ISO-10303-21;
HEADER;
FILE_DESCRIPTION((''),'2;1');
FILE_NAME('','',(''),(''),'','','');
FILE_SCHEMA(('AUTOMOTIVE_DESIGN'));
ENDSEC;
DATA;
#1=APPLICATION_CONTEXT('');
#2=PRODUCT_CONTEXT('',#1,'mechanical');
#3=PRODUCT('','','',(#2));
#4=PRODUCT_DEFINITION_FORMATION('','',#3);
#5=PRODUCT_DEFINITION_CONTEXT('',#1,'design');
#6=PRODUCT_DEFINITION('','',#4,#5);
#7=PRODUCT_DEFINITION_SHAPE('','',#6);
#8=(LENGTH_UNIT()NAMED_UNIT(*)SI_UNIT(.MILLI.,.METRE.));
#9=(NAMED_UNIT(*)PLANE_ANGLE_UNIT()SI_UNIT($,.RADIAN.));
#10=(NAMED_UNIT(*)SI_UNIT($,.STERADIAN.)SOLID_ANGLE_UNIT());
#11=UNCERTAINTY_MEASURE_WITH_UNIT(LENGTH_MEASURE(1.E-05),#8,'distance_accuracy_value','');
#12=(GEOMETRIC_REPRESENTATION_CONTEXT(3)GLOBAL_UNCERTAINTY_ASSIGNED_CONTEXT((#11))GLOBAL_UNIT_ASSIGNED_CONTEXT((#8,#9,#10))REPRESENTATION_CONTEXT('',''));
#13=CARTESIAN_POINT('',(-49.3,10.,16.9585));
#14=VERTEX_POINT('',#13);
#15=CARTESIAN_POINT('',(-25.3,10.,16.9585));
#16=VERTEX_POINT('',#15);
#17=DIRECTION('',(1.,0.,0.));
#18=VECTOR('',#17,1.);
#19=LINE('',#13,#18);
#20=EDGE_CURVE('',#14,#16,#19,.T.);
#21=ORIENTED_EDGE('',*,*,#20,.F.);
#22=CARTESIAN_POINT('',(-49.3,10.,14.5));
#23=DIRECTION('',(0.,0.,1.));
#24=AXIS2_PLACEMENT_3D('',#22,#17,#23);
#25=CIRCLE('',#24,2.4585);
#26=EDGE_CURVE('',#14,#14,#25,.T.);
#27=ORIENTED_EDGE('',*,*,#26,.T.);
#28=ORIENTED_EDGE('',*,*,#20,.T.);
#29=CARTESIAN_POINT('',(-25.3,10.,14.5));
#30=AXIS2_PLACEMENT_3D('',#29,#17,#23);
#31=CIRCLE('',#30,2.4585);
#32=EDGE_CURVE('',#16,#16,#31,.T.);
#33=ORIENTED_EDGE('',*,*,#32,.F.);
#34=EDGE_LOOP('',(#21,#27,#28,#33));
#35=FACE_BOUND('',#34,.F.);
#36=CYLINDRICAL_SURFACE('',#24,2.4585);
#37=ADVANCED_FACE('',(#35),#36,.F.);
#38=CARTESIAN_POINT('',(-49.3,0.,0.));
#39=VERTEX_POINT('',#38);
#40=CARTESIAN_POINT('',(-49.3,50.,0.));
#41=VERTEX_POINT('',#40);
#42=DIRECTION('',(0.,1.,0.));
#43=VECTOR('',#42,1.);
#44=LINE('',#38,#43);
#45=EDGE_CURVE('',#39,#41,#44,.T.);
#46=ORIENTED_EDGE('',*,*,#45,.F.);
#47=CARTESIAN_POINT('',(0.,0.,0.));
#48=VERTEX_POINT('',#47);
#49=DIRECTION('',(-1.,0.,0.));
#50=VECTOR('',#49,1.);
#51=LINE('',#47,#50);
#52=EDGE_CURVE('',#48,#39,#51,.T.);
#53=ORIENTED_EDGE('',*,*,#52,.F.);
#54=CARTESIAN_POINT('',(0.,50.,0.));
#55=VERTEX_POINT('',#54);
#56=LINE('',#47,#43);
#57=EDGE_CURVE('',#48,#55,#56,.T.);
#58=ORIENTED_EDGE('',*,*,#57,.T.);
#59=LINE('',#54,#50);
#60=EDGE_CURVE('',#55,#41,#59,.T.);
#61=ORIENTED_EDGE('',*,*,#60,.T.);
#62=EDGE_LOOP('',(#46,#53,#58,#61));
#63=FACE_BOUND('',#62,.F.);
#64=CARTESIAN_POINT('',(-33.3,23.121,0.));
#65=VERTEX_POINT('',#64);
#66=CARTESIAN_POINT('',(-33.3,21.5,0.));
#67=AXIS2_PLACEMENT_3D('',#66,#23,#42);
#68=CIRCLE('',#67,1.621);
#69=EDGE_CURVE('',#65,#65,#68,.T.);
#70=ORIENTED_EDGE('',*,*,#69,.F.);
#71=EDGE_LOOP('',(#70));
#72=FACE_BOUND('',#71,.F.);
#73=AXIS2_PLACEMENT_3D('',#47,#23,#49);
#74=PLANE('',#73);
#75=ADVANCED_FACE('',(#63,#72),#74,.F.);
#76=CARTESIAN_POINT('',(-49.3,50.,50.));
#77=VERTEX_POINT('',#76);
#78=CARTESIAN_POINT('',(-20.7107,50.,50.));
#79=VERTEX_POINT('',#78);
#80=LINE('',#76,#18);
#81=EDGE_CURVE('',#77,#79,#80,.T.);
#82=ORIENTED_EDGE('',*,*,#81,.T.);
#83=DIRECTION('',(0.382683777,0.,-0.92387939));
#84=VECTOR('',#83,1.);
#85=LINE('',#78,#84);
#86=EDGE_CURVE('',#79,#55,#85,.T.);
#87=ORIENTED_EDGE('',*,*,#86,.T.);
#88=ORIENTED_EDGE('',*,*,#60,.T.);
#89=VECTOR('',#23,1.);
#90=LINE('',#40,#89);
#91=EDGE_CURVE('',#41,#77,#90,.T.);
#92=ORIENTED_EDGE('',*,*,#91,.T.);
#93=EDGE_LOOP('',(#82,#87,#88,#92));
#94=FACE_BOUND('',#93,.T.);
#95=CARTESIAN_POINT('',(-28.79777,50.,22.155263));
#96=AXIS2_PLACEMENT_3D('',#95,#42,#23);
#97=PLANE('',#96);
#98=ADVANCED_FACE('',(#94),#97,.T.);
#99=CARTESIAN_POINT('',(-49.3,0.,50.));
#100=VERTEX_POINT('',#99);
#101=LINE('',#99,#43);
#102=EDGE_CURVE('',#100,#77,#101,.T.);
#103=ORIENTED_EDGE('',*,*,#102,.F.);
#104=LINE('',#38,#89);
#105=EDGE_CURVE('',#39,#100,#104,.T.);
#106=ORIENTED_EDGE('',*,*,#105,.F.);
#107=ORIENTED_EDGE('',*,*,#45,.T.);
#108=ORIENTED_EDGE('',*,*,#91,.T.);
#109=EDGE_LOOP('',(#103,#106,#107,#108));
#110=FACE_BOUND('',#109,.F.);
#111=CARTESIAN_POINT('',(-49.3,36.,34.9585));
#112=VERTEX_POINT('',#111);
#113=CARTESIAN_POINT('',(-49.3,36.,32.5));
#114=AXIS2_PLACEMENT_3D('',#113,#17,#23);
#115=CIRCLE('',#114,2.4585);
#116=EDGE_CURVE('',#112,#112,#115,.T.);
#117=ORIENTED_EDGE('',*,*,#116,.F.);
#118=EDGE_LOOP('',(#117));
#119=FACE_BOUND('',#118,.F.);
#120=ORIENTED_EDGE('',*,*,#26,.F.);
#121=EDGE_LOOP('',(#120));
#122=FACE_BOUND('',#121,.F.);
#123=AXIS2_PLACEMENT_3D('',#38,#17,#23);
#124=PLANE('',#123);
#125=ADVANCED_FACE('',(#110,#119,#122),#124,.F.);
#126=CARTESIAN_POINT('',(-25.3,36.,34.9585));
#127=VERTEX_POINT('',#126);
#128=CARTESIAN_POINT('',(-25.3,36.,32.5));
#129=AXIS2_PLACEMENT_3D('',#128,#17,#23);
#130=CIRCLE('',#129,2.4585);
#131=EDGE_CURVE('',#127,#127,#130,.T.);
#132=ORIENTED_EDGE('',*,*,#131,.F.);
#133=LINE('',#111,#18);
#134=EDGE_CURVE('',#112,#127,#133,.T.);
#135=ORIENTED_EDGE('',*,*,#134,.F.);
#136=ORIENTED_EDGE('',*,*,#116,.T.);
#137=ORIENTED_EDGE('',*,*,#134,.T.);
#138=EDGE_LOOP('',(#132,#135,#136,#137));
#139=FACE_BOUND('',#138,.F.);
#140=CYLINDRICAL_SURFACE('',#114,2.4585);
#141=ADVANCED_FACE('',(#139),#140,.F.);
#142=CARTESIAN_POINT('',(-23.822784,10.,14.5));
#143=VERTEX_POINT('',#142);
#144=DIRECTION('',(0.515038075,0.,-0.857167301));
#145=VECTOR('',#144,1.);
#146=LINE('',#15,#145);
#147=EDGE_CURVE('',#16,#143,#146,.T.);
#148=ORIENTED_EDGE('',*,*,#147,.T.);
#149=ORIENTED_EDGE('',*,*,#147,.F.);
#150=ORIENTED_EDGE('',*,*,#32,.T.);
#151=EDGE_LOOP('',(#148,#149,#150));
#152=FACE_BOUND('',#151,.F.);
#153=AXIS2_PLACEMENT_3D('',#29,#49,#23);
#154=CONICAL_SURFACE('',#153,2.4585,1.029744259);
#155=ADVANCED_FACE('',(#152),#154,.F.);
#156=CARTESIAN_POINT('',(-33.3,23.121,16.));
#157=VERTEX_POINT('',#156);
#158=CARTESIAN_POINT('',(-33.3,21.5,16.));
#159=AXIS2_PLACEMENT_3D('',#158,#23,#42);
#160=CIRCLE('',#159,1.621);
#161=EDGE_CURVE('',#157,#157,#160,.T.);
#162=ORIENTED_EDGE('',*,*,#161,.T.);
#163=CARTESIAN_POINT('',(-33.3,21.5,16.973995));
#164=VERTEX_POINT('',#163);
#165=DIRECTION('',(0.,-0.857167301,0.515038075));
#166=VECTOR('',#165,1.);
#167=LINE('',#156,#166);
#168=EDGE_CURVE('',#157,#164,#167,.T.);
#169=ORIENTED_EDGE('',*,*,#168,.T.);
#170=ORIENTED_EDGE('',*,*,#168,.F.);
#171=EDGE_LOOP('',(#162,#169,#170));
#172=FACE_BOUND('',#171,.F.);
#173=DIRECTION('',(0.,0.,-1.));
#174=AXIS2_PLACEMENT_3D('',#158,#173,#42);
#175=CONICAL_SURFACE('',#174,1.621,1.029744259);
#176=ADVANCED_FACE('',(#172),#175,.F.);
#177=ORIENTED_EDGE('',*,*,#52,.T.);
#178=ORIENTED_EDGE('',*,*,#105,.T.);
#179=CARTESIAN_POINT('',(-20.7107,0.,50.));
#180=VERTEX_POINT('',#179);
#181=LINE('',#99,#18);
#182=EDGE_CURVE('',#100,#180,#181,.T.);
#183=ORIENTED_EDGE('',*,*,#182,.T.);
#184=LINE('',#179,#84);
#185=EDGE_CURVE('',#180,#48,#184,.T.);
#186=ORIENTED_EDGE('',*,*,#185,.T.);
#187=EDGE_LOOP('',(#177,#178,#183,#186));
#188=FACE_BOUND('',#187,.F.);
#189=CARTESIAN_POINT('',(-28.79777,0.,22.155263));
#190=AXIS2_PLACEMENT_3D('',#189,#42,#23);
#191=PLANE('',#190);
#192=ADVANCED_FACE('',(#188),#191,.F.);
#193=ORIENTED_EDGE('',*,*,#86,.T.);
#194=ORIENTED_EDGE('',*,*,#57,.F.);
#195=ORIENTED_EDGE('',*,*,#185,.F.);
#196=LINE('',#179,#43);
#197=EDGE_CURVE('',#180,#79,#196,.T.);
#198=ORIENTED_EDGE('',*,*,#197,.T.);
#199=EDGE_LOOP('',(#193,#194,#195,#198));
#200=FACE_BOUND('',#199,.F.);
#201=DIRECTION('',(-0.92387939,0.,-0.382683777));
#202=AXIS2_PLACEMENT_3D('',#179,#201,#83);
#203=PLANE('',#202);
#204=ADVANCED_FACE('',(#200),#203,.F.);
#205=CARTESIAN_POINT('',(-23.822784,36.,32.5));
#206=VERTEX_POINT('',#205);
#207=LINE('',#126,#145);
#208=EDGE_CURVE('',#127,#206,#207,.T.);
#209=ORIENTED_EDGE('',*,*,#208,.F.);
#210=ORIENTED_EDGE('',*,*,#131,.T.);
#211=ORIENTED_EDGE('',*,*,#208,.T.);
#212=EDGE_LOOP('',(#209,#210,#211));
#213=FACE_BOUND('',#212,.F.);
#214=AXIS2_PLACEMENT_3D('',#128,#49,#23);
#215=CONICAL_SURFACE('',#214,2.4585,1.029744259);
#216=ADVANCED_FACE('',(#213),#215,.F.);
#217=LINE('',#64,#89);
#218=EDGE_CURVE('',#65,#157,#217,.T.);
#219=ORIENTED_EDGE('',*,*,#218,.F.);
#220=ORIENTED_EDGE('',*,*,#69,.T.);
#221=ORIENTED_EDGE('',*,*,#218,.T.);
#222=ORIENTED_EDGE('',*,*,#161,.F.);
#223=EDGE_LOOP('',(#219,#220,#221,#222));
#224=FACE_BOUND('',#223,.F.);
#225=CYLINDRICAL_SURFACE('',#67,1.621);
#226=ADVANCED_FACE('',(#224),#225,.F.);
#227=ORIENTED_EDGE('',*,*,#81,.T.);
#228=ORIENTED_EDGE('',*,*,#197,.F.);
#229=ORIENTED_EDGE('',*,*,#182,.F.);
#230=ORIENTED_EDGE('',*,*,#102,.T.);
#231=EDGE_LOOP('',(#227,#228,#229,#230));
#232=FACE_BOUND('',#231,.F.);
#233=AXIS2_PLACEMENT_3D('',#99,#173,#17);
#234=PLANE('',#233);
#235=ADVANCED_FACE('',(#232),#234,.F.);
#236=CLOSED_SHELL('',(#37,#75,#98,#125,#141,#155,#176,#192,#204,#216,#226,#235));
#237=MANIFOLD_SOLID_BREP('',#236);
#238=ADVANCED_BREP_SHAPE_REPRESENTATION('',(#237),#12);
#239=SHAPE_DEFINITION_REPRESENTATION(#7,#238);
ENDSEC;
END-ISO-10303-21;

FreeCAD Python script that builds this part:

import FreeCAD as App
import Part
import Sketcher
Q = App.Units.Quantity

doc = App.newDocument("Part")
body = doc.addObject("PartDesign::Body", "Body")

# Sketch on XZ plane
sketch1 = body.newObject("Sketcher::SketchObject", "Sketch")
sketch1.AttachmentSupport = (doc.getObject("XZ_Plane"), [""])
sketch1.MapMode = "FlatFace"
sketch1.addGeometry(Part.LineSegment(App.Vector(-49.3, 0, 0), App.Vector(0, 0, 0)), False)
sketch1.addGeometry(Part.LineSegment(App.Vector(0, 0, 0), App.Vector(-20.7107, 50, 0)), False)
sketch1.addGeometry(Part.LineSegment(App.Vector(-20.7107, 50, 0), App.Vector(-49.3, 50, 0)), False)
sketch1.addGeometry(Part.LineSegment(App.Vector(-49.3, 50, 0), App.Vector(-49.3, 0, 0)), False)
sketch1.addConstraint(Sketcher.Constraint("Coincident", 0, 2, 1, 1))
sketch1.addConstraint(Sketcher.Constraint("Coincident", 1, 2, 2, 1))
sketch1.addConstraint(Sketcher.Constraint("Coincident", 2, 2, 3, 1))
sketch1.addConstraint(Sketcher.Constraint("Coincident", 3, 2, 0, 1))
sketch1.addConstraint(Sketcher.Constraint("Horizontal", 0))
sketch1.addConstraint(Sketcher.Constraint("Horizontal", 2))
sketch1.addConstraint(Sketcher.Constraint("Vertical", 3))
sketch1.addConstraint(Sketcher.Constraint("Coincident", 0, 2, -1, 1))
sketch1.addConstraint(Sketcher.Constraint("DistanceX", 0, 1, 0, 2, Q("49.3 mm")))
sketch1.addConstraint(Sketcher.Constraint("DistanceY", 3, 2, 3, 1, Q("50 mm")))
sketch1.addConstraint(Sketcher.Constraint("Angle", 1, Q("112.5 deg")))
pad1 = body.newObject("PartDesign::Pad", "Pad")
pad1.Profile = sketch1
pad1.Length = 50
pad1.Reversed = True

# Sketch on YZ plane
sketch2 = body.newObject("Sketcher::SketchObject", "Sketch001")
sketch2.AttachmentSupport = (doc.getObject("YZ_Plane"), [""])
sketch2.MapMode = "FlatFace"
sketch2.AttachmentOffset = App.Placement(App.Vector(0, 0, -49.3), App.Rotation())
sketch2.addGeometry(Part.Circle(App.Vector(36, 32.5, 0), App.Vector(0, 0, 1), 2.4585), False)
sketch2.addConstraint(Sketcher.Constraint("Diameter", 0, Q("4.917 mm")))
sketch2.addConstraint(Sketcher.Constraint("DistanceX", -1, 1, 0, 3, Q("36 mm")))
sketch2.addConstraint(Sketcher.Constraint("DistanceY", -1, 1, 0, 3, Q("32.5 mm")))
doc.recompute()
hole = body.newObject("PartDesign::Hole", "Hole")
hole.Profile = sketch2
hole.ThreadType = "None"
hole.Diameter = 4.917
hole.DepthType = "Dimension"
hole.Depth = 24
hole.DrillPoint = "Angled"
hole.DrillPointAngle = 118
hole.Reversed = True

# Sketch on YZ plane
sketch3 = body.newObject("Sketcher::SketchObject", "Sketch002")
sketch3.AttachmentSupport = (doc.getObject("YZ_Plane"), [""])
sketch3.MapMode = "FlatFace"
sketch3.AttachmentOffset = App.Placement(App.Vector(0, 0, -49.3), App.Rotation())
sketch3.addGeometry(Part.Circle(App.Vector(10, 14.5, 0), App.Vector(0, 0, 1), 2.4585), False)
sketch3.addConstraint(Sketcher.Constraint("Diameter", 0, Q("4.917 mm")))
sketch3.addConstraint(Sketcher.Constraint("DistanceX", -1, 1, 0, 3, Q("10 mm")))
sketch3.addConstraint(Sketcher.Constraint("DistanceY", -1, 1, 0, 3, Q("14.5 mm")))
doc.recompute()
hole2 = body.newObject("PartDesign::Hole", "Hole001")
hole2.Profile = sketch3
hole2.ThreadType = "None"
hole2.Diameter = 4.917
hole2.DepthType = "Dimension"
hole2.Depth = 24
hole2.DrillPoint = "Angled"
hole2.DrillPointAngle = 118
hole2.Reversed = True

# Sketch on XY plane
sketch4 = body.newObject("Sketcher::SketchObject", "Sketch003")
sketch4.AttachmentSupport = (doc.getObject("XY_Plane"), [""])
sketch4.MapMode = "FlatFace"
sketch4.addGeometry(Part.Circle(App.Vector(-33.3, 21.5, 0), App.Vector(0, 0, 1), 1.621), False)
sketch4.addConstraint(Sketcher.Constraint("Diameter", 0, Q("3.242 mm")))
sketch4.addConstraint(Sketcher.Constraint("DistanceX", 0, 3, -1, 1, Q("33.3 mm")))
sketch4.addConstraint(Sketcher.Constraint("DistanceY", -1, 1, 0, 3, Q("21.5 mm")))
doc.recompute()
hole3 = body.newObject("PartDesign::Hole", "Hole002")
hole3.Profile = sketch4
hole3.ThreadType = "None"
hole3.Diameter = 3.242
hole3.DepthType = "Dimension"
hole3.Depth = 16
hole3.DrillPoint = "Angled"
hole3.DrillPointAngle = 118
hole3.Reversed = True

doc.recompute()
